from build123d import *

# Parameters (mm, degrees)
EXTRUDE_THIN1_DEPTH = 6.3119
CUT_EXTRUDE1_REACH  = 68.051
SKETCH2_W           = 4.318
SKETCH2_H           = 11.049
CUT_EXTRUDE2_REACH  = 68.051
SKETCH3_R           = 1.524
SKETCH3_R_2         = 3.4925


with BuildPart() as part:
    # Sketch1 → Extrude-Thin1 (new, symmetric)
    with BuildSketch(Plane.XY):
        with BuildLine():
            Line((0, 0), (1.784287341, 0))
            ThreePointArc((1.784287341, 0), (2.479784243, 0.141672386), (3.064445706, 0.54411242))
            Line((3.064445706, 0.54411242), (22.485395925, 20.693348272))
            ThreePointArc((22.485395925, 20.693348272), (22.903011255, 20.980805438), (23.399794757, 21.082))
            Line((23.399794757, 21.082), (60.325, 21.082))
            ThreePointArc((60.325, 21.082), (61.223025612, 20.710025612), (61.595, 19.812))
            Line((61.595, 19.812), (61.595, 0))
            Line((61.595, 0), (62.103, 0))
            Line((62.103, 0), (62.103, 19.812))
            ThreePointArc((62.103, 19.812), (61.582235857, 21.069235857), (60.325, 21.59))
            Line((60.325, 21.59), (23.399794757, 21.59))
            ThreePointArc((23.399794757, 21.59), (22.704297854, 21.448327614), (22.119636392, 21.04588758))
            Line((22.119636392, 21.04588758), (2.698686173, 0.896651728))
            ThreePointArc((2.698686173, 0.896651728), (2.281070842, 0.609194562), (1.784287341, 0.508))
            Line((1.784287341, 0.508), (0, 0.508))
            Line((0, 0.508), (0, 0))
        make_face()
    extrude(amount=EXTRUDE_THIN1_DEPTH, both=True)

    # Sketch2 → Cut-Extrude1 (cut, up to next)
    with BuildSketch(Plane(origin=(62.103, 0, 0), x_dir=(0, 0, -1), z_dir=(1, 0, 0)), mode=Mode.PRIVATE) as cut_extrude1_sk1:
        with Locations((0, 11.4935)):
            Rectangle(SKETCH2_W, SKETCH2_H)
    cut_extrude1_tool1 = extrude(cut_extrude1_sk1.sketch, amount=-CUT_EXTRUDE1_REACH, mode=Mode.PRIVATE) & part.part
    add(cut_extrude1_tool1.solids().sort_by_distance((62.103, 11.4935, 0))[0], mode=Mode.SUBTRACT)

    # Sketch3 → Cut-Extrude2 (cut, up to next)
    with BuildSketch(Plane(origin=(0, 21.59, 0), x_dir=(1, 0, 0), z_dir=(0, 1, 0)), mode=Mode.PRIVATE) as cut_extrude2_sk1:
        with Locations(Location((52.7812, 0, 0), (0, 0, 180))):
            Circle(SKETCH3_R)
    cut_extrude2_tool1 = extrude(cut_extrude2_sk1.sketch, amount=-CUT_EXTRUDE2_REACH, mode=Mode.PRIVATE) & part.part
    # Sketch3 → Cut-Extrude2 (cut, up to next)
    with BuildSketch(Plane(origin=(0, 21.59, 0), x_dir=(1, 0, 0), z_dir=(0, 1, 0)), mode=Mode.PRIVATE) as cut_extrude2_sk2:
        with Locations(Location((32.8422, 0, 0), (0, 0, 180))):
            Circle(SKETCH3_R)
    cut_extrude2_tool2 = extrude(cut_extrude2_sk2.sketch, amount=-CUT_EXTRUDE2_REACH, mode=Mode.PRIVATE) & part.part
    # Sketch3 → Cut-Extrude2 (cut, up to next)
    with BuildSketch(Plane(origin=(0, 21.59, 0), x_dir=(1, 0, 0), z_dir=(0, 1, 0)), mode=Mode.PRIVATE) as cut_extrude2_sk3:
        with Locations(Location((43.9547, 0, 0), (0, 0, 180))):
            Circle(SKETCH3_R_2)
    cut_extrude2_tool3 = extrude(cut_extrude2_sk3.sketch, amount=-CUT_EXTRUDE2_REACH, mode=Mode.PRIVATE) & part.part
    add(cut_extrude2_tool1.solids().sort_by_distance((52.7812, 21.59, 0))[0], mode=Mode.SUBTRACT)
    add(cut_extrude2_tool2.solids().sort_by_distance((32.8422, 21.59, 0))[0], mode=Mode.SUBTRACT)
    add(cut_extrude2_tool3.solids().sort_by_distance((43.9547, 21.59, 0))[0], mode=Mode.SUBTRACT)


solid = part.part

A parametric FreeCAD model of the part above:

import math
import FreeCAD as App
import Part
import Sketcher
Q = App.Units.Quantity

doc = App.newDocument("Part")
body = doc.addObject("PartDesign::Body", "Body")

sketch1 = body.newObject("Sketcher::SketchObject", "Sketch")
sketch1.AttachmentSupport = (doc.getObject("XY_Plane"), [""])
sketch1.MapMode = "FlatFace"
sketch1.addGeometry([
    Part.LineSegment(App.Vector(0, 0, 0), App.Vector(1.784287, 0, 0)),
    Part.ArcOfCircle(Part.Circle(App.Vector(1.784287, 1.778, 0), App.Vector(0, 0, 1), 1.778), math.radians(-90), math.radians(-43.945595)),
    Part.LineSegment(App.Vector(3.064446, 0.544112, 0), App.Vector(22.485396, 20.693348, 0)),
    Part.ArcOfCircle(Part.Circle(App.Vector(23.399795, 19.812, 0), App.Vector(0, 0, 1), 1.27), math.radians(90), math.radians(136.054404)),
    Part.LineSegment(App.Vector(23.399795, 21.082, 0), App.Vector(60.325, 21.082, 0)),
    Part.ArcOfCircle(Part.Circle(App.Vector(60.325, 19.812, 0), App.Vector(0, 0, 1), 1.27), math.radians(0), math.radians(90)),
    Part.LineSegment(App.Vector(61.595, 19.812, 0), App.Vector(61.595, 0, 0)),
    Part.LineSegment(App.Vector(61.595, 0, 0), App.Vector(62.103, 0, 0)),
    Part.LineSegment(App.Vector(62.103, 0, 0), App.Vector(62.103, 19.812, 0)),
    Part.ArcOfCircle(Part.Circle(App.Vector(60.325, 19.812, 0), App.Vector(0, 0, 1), 1.778), math.radians(0), math.radians(90)),
    Part.LineSegment(App.Vector(60.325, 21.59, 0), App.Vector(23.399795, 21.59, 0)),
    Part.ArcOfCircle(Part.Circle(App.Vector(23.399795, 19.812, 0), App.Vector(0, 0, 1), 1.778), math.radians(90), math.radians(136.054405)),
    Part.LineSegment(App.Vector(22.119636, 21.045888, 0), App.Vector(2.698686, 0.896652, 0)),
    Part.ArcOfCircle(Part.Circle(App.Vector(1.784287, 1.778, 0), App.Vector(0, 0, 1), 1.27), math.radians(-90), math.radians(-43.945596)),
    Part.LineSegment(App.Vector(1.784287, 0.508, 0), App.Vector(0, 0.508, 0)),
    Part.LineSegment(App.Vector(0, 0.508, 0), App.Vector(0, 0, 0)),
], False)
sketch1.addConstraint([
    Sketcher.Constraint("Coincident", 0, 2, 1, 1),
    Sketcher.Constraint("Coincident", 1, 2, 2, 1),
    Sketcher.Constraint("Coincident", 2, 2, 3, 2),
    Sketcher.Constraint("Coincident", 3, 1, 4, 1),
    Sketcher.Constraint("Coincident", 4, 2, 5, 2),
    Sketcher.Constraint("Coincident", 5, 1, 6, 1),
    Sketcher.Constraint("Coincident", 6, 2, 7, 1),
    Sketcher.Constraint("Coincident", 7, 2, 8, 1),
    Sketcher.Constraint("Coincident", 8, 2, 9, 1),
    Sketcher.Constraint("Coincident", 9, 2, 10, 1),
    Sketcher.Constraint("Coincident", 10, 2, 11, 1),
    Sketcher.Constraint("Coincident", 11, 2, 12, 1),
    Sketcher.Constraint("Coincident", 12, 2, 13, 2),
    Sketcher.Constraint("Coincident", 13, 1, 14, 1),
    Sketcher.Constraint("Coincident", 14, 2, 15, 1),
    Sketcher.Constraint("Coincident", 15, 2, 0, 1),
    Sketcher.Constraint("Horizontal", 0),
    Sketcher.Constraint("Horizontal", 4),
    Sketcher.Constraint("Vertical", 6),
    Sketcher.Constraint("Horizontal", 7),
    Sketcher.Constraint("Vertical", 8),
    Sketcher.Constraint("Horizontal", 10),
    Sketcher.Constraint("Horizontal", 14),
    Sketcher.Constraint("Vertical", 15),
    Sketcher.Constraint("Coincident", 15, 2, -1, 1),
    Sketcher.Constraint("Coincident", 9, 3, 5, 3),
    Sketcher.Constraint("Coincident", 11, 3, 3, 3),
    Sketcher.Constraint("Coincident", 13, 3, 1, 3),
    Sketcher.Constraint("PointOnObject", 6, 2, -1),
    Sketcher.Constraint("Radius", 1, Q("0.07 in")),
    Sketcher.Constraint("Radius", 3, Q("0.05 in")),
    Sketcher.Constraint("Radius", 5, Q("0.05 in")),
    Sketcher.Constraint("Radius", 9, Q("0.07 in")),
    Sketcher.Constraint("Radius", 13, Q("0.05 in")),
    Sketcher.Constraint("DistanceY", 6, 2, 6, 1, Q("0.78 in")),
    Sketcher.Constraint("DistanceY", 8, 1, 8, 2, Q("0.78 in")),
    Sketcher.Constraint("DistanceY", -1, 1, 3, 3, Q("0.78 in")),
    Sketcher.Constraint("DistanceX", 4, 2, 5, 1, Q("0.05 in")),
    Sketcher.Constraint("DistanceX", 9, 2, 5, 1, Q("0.05 in")),
    Sketcher.Constraint("DistanceX", -1, 1, 5, 3, Q("2.375 in")),
    Sketcher.Constraint("DistanceX", 2, 2, 11, 3, Q("0.036 in")),
    Sketcher.Constraint("DistanceX", 2, 2, 3, 1, Q("0.036 in")),
    Sketcher.Constraint("DistanceX", 2, 2, 10, 2, Q("0.036 in")),
    Sketcher.Constraint("DistanceX", 1, 3, 12, 2, Q("0.036 in")),
    Sketcher.Constraint("DistanceX", 0, 2, 12, 2, Q("0.036 in")),
    Sketcher.Constraint("DistanceX", 13, 1, 12, 2, Q("0.036 in")),
    Sketcher.Constraint("DistanceX", 0, 2, 1, 2, Q("0.0503999 in")),
    Sketcher.Constraint("DistanceX", 11, 2, 2, 2, Q("0.0144 in")),
    Sketcher.Constraint("DistanceX", 0, 1, 0, 2, Q("1.784287 mm")),
    Sketcher.Constraint("DistanceX", 4, 1, 4, 2, Q("36.925205 mm")),
])
pad1 = body.newObject("PartDesign::Pad", "Pad")
pad1.Profile = sketch1
pad1.Length = Q("0.497 in")
pad1.Midplane = True

sketch2 = body.newObject("Sketcher::SketchObject", "Sketch001")
sketch2.AttachmentSupport = (doc.getObject("YZ_Plane"), [""])
sketch2.MapMode = "FlatFace"
sketch2.AttachmentOffset = App.Placement(App.Vector(0, 0, 2.445 * 25.4), App.Rotation())
sketch2.addGeometry([
    Part.LineSegment(App.Vector(17, 2.2, 0), App.Vector(6, 2.2, 0)),
    Part.LineSegment(App.Vector(6, 2.2, 0), App.Vector(6, -2.2, 0)),
    Part.LineSegment(App.Vector(6, -2.2, 0), App.Vector(17, -2.2, 0)),
    Part.LineSegment(App.Vector(17, -2.2, 0), App.Vector(17, 2.2, 0)),
], False)
sketch2.addConstraint([
    Sketcher.Constraint("Coincident", 0, 2, 1, 1),
    Sketcher.Constraint("Coincident", 1, 2, 2, 1),
    Sketcher.Constraint("Coincident", 2, 2, 3, 1),
    Sketcher.Constraint("Coincident", 3, 2, 0, 1),
    Sketcher.Constraint("Horizontal", 0),
    Sketcher.Constraint("Vertical", 1),
    Sketcher.Constraint("Horizontal", 2),
    Sketcher.Constraint("Vertical", 3),
    Sketcher.Constraint("DistanceY", 1, 2, 1, 1, Q("0.17 in")),
    Sketcher.Constraint("DistanceX", 0, 2, 0, 1, Q("0.435 in")),
    Sketcher.Constraint("DistanceX", -1, 1, 2, 2, Q("0.67 in")),
    Sketcher.Constraint("DistanceY", -1, 1, 0, 2, Q("0.085 in")),
])
pocket1 = body.newObject("PartDesign::Pocket", "Pocket")
pocket1.Profile = sketch2
pocket1.Type = "UpToFirst"

sketch3 = body.newObject("Sketcher::SketchObject", "Sketch002")
sketch3.AttachmentSupport = (doc.getObject("XZ_Plane"), [""])
sketch3.MapMode = "FlatFace"
sketch3.AttachmentOffset = App.Placement(App.Vector(0, 0, -0.85 * 25.4), App.Rotation())
sketch3.addGeometry(Part.Circle(App.Vector(52.8, 0, 0), App.Vector(0, 0, 1), 1.5), False)
sketch3.addConstraint([
    Sketcher.Constraint("PointOnObject", 0, 3, -1),
    Sketcher.Constraint("Diameter", 0, Q("0.12 in")),
    Sketcher.Constraint("DistanceX", -1, 1, 0, 3, Q("2.078 in")),
])
pocket2 = body.newObject("PartDesign::Pocket", "Pocket001")
pocket2.Profile = sketch3
pocket2.Type = "UpToFirst"
pocket2.Reversed = True

sketch4 = body.newObject("Sketcher::SketchObject", "Sketch003")
sketch4.AttachmentSupport = (doc.getObject("XZ_Plane"), [""])
sketch4.MapMode = "FlatFace"
sketch4.AttachmentOffset = App.Placement(App.Vector(0, 0, -0.85 * 25.4), App.Rotation())
sketch4.addGeometry(Part.Circle(App.Vector(32.8, 0, 0), App.Vector(0, 0, 1), 1.5), False)
sketch4.addConstraint([
    Sketcher.Constraint("PointOnObject", 0, 3, -1),
    Sketcher.Constraint("Diameter", 0, Q("0.12 in")),
    Sketcher.Constraint("DistanceX", -1, 1, 0, 3, Q("1.293 in")),
])
pocket3 = body.newObject("PartDesign::Pocket", "Pocket002")
pocket3.Profile = sketch4
pocket3.Type = "UpToFirst"
pocket3.Reversed = True

sketch5 = body.newObject("Sketcher::SketchObject", "Sketch004")
sketch5.AttachmentSupport = (doc.getObject("XZ_Plane"), [""])
sketch5.MapMode = "FlatFace"
sketch5.AttachmentOffset = App.Placement(App.Vector(0, 0, -0.85 * 25.4), App.Rotation())
sketch5.addGeometry(Part.Circle(App.Vector(44, 0, 0), App.Vector(0, 0, 1), 3.5), False)
sketch5.addConstraint([
    Sketcher.Constraint("PointOnObject", 0, 3, -1),
    Sketcher.Constraint("Diameter", 0, Q("0.275 in")),
    Sketcher.Constraint("DistanceX", -1, 1, 0, 3, Q("1.7305 in")),
])
pocket4 = body.newObject("PartDesign::Pocket", "Pocket003")
pocket4.Profile = sketch5
pocket4.Type = "UpToFirst"
pocket4.Reversed = True

doc.recompute()
